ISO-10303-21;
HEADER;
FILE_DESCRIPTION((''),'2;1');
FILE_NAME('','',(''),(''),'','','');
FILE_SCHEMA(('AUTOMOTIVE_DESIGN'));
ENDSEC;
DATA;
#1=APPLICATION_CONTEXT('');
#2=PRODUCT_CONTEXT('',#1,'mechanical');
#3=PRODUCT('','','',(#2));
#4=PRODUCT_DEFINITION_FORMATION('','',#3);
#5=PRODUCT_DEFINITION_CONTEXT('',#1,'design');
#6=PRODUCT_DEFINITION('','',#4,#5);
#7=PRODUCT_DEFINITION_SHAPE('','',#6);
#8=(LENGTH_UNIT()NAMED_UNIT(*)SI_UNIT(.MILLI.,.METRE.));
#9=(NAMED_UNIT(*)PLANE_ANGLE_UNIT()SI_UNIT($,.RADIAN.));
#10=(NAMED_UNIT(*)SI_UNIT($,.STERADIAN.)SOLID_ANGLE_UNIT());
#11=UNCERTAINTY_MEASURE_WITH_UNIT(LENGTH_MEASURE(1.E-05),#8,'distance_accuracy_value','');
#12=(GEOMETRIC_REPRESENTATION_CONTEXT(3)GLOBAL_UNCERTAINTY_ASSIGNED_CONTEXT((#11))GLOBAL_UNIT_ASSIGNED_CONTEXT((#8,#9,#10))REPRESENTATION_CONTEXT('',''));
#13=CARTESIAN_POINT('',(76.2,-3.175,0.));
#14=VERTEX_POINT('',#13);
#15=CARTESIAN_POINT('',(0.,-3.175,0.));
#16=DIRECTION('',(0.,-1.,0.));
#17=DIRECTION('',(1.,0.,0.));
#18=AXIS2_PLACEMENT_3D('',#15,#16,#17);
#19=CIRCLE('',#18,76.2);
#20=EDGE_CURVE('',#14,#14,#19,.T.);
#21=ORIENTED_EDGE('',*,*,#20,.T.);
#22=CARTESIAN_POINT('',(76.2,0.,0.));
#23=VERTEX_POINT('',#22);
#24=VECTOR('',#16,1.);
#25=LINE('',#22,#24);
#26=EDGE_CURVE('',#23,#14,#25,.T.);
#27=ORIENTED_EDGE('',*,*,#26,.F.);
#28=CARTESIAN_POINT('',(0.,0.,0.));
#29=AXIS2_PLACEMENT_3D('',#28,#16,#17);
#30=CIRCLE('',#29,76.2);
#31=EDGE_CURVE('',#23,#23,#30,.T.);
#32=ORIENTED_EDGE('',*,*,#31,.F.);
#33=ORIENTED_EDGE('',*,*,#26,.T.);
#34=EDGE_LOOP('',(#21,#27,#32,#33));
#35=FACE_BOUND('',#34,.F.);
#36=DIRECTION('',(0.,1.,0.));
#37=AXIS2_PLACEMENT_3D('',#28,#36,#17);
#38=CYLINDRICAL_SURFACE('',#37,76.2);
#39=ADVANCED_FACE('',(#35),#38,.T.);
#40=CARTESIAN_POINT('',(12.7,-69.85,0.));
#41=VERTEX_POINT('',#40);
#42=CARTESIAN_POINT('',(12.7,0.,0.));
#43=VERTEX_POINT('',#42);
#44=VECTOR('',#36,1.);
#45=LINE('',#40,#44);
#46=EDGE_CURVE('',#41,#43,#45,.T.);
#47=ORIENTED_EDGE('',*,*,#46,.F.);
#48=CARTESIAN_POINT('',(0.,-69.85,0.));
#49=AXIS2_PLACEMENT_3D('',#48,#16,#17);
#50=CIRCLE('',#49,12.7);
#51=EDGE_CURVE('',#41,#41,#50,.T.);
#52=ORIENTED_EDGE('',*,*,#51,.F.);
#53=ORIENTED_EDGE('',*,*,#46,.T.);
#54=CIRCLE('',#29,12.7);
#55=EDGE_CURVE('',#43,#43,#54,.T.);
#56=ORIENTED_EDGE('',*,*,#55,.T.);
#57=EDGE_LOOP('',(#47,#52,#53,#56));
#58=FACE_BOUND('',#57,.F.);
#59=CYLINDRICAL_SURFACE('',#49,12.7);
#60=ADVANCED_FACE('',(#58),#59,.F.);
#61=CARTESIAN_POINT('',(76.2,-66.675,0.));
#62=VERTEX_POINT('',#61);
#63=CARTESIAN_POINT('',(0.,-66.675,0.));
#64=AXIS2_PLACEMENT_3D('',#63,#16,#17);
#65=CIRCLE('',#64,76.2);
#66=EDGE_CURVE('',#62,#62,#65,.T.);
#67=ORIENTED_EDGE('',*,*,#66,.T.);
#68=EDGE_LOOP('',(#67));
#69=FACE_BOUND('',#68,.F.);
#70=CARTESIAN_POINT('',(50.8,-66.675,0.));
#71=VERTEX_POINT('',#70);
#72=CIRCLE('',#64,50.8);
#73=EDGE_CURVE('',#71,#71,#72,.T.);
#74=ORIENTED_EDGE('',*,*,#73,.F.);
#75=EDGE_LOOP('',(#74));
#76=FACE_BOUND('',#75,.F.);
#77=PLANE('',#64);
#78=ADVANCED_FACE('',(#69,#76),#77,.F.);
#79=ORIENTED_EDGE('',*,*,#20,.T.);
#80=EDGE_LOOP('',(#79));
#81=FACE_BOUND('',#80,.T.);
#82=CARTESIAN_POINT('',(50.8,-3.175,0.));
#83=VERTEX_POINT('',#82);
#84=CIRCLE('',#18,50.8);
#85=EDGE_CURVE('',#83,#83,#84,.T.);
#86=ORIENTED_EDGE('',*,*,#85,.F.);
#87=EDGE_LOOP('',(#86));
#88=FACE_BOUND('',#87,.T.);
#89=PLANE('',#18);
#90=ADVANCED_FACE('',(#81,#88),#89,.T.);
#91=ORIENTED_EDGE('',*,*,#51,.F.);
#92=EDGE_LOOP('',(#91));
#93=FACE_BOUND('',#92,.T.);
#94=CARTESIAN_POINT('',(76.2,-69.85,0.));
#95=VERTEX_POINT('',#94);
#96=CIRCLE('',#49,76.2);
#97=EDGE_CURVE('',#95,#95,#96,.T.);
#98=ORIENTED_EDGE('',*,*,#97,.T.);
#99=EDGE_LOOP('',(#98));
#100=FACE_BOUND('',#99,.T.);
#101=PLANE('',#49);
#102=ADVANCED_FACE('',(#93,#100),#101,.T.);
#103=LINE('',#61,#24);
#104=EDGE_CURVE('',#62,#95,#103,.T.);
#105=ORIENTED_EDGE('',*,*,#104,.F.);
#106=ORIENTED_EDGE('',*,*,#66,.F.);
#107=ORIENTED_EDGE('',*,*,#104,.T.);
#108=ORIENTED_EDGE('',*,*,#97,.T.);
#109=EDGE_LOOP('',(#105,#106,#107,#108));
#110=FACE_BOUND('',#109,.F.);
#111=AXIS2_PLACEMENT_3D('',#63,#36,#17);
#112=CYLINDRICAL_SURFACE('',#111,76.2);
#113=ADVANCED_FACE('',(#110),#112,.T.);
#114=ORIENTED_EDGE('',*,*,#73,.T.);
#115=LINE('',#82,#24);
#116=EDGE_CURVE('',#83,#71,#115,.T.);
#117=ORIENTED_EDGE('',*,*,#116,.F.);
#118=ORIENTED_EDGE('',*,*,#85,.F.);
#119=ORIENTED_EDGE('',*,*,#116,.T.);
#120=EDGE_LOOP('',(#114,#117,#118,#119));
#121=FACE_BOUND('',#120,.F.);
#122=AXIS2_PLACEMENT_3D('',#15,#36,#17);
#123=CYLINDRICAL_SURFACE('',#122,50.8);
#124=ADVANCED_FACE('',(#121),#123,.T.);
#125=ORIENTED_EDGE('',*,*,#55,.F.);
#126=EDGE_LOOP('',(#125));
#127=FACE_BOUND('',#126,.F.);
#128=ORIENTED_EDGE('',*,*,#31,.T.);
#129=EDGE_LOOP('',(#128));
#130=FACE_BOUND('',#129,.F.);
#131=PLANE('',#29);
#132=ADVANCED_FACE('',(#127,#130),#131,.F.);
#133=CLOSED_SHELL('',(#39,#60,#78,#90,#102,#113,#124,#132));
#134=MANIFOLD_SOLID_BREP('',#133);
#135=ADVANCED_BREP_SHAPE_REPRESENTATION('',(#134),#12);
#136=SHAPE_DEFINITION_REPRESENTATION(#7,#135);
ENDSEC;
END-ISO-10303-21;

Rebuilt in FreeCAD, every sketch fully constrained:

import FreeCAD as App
import Part
import Sketcher
from FreeCAD import Vector
Q = App.Units.Quantity

doc = App.newDocument("Part")
body = doc.addObject("PartDesign::Body", "Body")

# Sketch on XZ plane
sketch1 = body.newObject("Sketcher::SketchObject", "Sketch")
sketch1.AttachmentSupport = (doc.getObject("XZ_Plane"), [""])
sketch1.MapMode = "FlatFace"
sketch1.addGeometry(Part.Circle(Vector(0, 0, 0), Vector(0, 0, 1), 76), False)
sketch1.addConstraint([
    Sketcher.Constraint("Coincident", 0, 3, -1, 1),
    Sketcher.Constraint("Diameter", 0, Q("6 in")),
])
pad1 = body.newObject("PartDesign::Pad", "Pad")
pad1.Profile = sketch1
pad1.Length = Q("0.125 in")

# Sketch on XZ plane
sketch2 = body.newObject("Sketcher::SketchObject", "Sketch001")
sketch2.AttachmentSupport = (doc.getObject("XZ_Plane"), [""])
sketch2.MapMode = "FlatFace"
sketch2.AttachmentOffset = App.Placement(Vector(0, 0, 0.125 * 25.4), App.Rotation())
sketch2.addGeometry(Part.Circle(Vector(0, 0, 0), Vector(0, 0, 1), 51), False)
sketch2.addConstraint([
    Sketcher.Constraint("Coincident", 0, 3, -1, 1),
    Sketcher.Constraint("Diameter", 0, Q("4 in")),
])
pad2 = body.newObject("PartDesign::Pad", "Pad001")
pad2.Profile = sketch2
pad2.Length = Q("2.5 in")

# Sketch on XZ plane
sketch3 = body.newObject("Sketcher::SketchObject", "Sketch002")
sketch3.AttachmentSupport = (doc.getObject("XZ_Plane"), [""])
sketch3.MapMode = "FlatFace"
sketch3.AttachmentOffset = App.Placement(Vector(0, 0, 2.625 * 25.4), App.Rotation())
sketch3.addGeometry(Part.Circle(Vector(0, 0, 0), Vector(0, 0, 1), 76), False)
sketch3.addConstraint([
    Sketcher.Constraint("Coincident", 0, 3, -1, 1),
    Sketcher.Constraint("Diameter", 0, Q("6 in")),
])
pad3 = body.newObject("PartDesign::Pad", "Pad002")
pad3.Profile = sketch3
pad3.Length = Q("0.125 in")

# Sketch on XZ plane
sketch4 = body.newObject("Sketcher::SketchObject", "Sketch003")
sketch4.AttachmentSupport = (doc.getObject("XZ_Plane"), [""])
sketch4.MapMode = "FlatFace"
sketch4.AttachmentOffset = App.Placement(Vector(0, 0, 2.75 * 25.4), App.Rotation())
sketch4.addGeometry(Part.Circle(Vector(0, 0, 0), Vector(0, 0, 1), 13), False)
sketch4.addConstraint([
    Sketcher.Constraint("Coincident", 0, 3, -1, 1),
    Sketcher.Constraint("Diameter", 0, Q("1 in")),
])
pocket1 = body.newObject("PartDesign::Pocket", "Pocket")
pocket1.Profile = sketch4
pocket1.Length = Q("10 in")

doc.recompute()
